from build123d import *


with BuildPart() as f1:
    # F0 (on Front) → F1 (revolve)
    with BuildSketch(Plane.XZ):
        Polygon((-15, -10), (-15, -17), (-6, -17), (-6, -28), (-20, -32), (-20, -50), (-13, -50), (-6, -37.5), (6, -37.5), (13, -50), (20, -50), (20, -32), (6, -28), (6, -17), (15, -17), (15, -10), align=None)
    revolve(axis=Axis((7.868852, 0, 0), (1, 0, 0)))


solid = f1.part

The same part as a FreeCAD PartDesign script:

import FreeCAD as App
import Part
import Sketcher

doc = App.newDocument("Part")
body = doc.addObject("PartDesign::Body", "Body")

sketch1 = body.newObject("Sketcher::SketchObject", "Sketch")
sketch1.AttachmentSupport = (doc.getObject("XZ_Plane"), [""])
sketch1.MapMode = "FlatFace"
sketch1.addGeometry([
    Part.LineSegment(App.Vector(-15, -10, 0), App.Vector(-15, -17, 0)),
    Part.LineSegment(App.Vector(-15, -17, 0), App.Vector(-6, -17, 0)),
    Part.LineSegment(App.Vector(-6, -17, 0), App.Vector(-6, -28, 0)),
    Part.LineSegment(App.Vector(-6, -28, 0), App.Vector(-20, -32, 0)),
    Part.LineSegment(App.Vector(-20, -32, 0), App.Vector(-20, -50, 0)),
    Part.LineSegment(App.Vector(-20, -50, 0), App.Vector(-13, -50, 0)),
    Part.LineSegment(App.Vector(-13, -50, 0), App.Vector(-6, -38, 0)),
    Part.LineSegment(App.Vector(-6, -38, 0), App.Vector(6, -38, 0)),
    Part.LineSegment(App.Vector(6, -38, 0), App.Vector(13, -50, 0)),
    Part.LineSegment(App.Vector(13, -50, 0), App.Vector(20, -50, 0)),
    Part.LineSegment(App.Vector(20, -50, 0), App.Vector(20, -32, 0)),
    Part.LineSegment(App.Vector(20, -32, 0), App.Vector(6, -28, 0)),
    Part.LineSegment(App.Vector(6, -28, 0), App.Vector(6, -17, 0)),
    Part.LineSegment(App.Vector(6, -17, 0), App.Vector(15, -17, 0)),
    Part.LineSegment(App.Vector(15, -17, 0), App.Vector(15, -10, 0)),
    Part.LineSegment(App.Vector(15, -10, 0), App.Vector(-15, -10, 0)),
], False)
sketch1.addConstraint([
    Sketcher.Constraint("Coincident", 0, 2, 1, 1),
    Sketcher.Constraint("Coincident", 1, 2, 2, 1),
    Sketcher.Constraint("Coincident", 2, 2, 3, 1),
    Sketcher.Constraint("Coincident", 3, 2, 4, 1),
    Sketcher.Constraint("Coincident", 4, 2, 5, 1),
    Sketcher.Constraint("Coincident", 5, 2, 6, 1),
    Sketcher.Constraint("Coincident", 6, 2, 7, 1),
    Sketcher.Constraint("Coincident", 7, 2, 8, 1),
    Sketcher.Constraint("Coincident", 8, 2, 9, 1),
    Sketcher.Constraint("Coincident", 9, 2, 10, 1),
    Sketcher.Constraint("Coincident", 10, 2, 11, 1),
    Sketcher.Constraint("Coincident", 11, 2, 12, 1),
    Sketcher.Constraint("Coincident", 12, 2, 13, 1),
    Sketcher.Constraint("Coincident", 13, 2, 14, 1),
    Sketcher.Constraint("Coincident", 14, 2, 15, 1),
    Sketcher.Constraint("Coincident", 15, 2, 0, 1),
    Sketcher.Constraint("Vertical", 0),
    Sketcher.Constraint("Horizontal", 1),
    Sketcher.Constraint("Vertical", 2),
    Sketcher.Constraint("Vertical", 4),
    Sketcher.Constraint("Horizontal", 5),
    Sketcher.Constraint("Horizontal", 7),
    Sketcher.Constraint("Horizontal", 9),
    Sketcher.Constraint("Vertical", 10),
    Sketcher.Constraint("Vertical", 12),
    Sketcher.Constraint("Horizontal", 13),
    Sketcher.Constraint("Vertical", 14),
    Sketcher.Constraint("Horizontal", 15),
    Sketcher.Constraint("Symmetric", 5, 2, 8, 2, -2),
    Sketcher.Constraint("Symmetric", 3, 2, 10, 2, -2),
    Sketcher.Constraint("Symmetric", 2, 2, 11, 2, -2),
    Sketcher.Constraint("Symmetric", 0, 2, 13, 2, -2),
    Sketcher.Constraint("Vertical", 2, 2, 6, 2),
    Sketcher.Constraint("Vertical", 7, 2, 11, 2),
    Sketcher.Constraint("Equal", 9, 0),
    Sketcher.Constraint("DistanceX", 1, 1, 1, 2, 9.0),
    Sketcher.Constraint("DistanceX", 5, 1, 5, 2, 7.0),
    Sketcher.Constraint("DistanceX", 7, 1, 7, 2, 12.0),
    Sketcher.Constraint("DistanceY", 2, 2, 2, 1, 11.0),
    Sketcher.Constraint("DistanceY", 4, 2, 4, 1, 18.0),
    Sketcher.Constraint("DistanceY", 0, 2, -1, 1, 17.0),
    Sketcher.Constraint("DistanceX", 3, 2, -1, 1, 20.0),
    Sketcher.Constraint("DistanceY", 3, 2, -1, 1, 32.0),
    Sketcher.Constraint("DistanceY", 6, 2, -1, 1, 37.5),
])
revolution = body.newObject("PartDesign::Revolution", "Revolution")
revolution.Profile = sketch1
revolution.ReferenceAxis = (sketch1, ["H_Axis"])
revolution.Angle = 360

doc.recompute()
